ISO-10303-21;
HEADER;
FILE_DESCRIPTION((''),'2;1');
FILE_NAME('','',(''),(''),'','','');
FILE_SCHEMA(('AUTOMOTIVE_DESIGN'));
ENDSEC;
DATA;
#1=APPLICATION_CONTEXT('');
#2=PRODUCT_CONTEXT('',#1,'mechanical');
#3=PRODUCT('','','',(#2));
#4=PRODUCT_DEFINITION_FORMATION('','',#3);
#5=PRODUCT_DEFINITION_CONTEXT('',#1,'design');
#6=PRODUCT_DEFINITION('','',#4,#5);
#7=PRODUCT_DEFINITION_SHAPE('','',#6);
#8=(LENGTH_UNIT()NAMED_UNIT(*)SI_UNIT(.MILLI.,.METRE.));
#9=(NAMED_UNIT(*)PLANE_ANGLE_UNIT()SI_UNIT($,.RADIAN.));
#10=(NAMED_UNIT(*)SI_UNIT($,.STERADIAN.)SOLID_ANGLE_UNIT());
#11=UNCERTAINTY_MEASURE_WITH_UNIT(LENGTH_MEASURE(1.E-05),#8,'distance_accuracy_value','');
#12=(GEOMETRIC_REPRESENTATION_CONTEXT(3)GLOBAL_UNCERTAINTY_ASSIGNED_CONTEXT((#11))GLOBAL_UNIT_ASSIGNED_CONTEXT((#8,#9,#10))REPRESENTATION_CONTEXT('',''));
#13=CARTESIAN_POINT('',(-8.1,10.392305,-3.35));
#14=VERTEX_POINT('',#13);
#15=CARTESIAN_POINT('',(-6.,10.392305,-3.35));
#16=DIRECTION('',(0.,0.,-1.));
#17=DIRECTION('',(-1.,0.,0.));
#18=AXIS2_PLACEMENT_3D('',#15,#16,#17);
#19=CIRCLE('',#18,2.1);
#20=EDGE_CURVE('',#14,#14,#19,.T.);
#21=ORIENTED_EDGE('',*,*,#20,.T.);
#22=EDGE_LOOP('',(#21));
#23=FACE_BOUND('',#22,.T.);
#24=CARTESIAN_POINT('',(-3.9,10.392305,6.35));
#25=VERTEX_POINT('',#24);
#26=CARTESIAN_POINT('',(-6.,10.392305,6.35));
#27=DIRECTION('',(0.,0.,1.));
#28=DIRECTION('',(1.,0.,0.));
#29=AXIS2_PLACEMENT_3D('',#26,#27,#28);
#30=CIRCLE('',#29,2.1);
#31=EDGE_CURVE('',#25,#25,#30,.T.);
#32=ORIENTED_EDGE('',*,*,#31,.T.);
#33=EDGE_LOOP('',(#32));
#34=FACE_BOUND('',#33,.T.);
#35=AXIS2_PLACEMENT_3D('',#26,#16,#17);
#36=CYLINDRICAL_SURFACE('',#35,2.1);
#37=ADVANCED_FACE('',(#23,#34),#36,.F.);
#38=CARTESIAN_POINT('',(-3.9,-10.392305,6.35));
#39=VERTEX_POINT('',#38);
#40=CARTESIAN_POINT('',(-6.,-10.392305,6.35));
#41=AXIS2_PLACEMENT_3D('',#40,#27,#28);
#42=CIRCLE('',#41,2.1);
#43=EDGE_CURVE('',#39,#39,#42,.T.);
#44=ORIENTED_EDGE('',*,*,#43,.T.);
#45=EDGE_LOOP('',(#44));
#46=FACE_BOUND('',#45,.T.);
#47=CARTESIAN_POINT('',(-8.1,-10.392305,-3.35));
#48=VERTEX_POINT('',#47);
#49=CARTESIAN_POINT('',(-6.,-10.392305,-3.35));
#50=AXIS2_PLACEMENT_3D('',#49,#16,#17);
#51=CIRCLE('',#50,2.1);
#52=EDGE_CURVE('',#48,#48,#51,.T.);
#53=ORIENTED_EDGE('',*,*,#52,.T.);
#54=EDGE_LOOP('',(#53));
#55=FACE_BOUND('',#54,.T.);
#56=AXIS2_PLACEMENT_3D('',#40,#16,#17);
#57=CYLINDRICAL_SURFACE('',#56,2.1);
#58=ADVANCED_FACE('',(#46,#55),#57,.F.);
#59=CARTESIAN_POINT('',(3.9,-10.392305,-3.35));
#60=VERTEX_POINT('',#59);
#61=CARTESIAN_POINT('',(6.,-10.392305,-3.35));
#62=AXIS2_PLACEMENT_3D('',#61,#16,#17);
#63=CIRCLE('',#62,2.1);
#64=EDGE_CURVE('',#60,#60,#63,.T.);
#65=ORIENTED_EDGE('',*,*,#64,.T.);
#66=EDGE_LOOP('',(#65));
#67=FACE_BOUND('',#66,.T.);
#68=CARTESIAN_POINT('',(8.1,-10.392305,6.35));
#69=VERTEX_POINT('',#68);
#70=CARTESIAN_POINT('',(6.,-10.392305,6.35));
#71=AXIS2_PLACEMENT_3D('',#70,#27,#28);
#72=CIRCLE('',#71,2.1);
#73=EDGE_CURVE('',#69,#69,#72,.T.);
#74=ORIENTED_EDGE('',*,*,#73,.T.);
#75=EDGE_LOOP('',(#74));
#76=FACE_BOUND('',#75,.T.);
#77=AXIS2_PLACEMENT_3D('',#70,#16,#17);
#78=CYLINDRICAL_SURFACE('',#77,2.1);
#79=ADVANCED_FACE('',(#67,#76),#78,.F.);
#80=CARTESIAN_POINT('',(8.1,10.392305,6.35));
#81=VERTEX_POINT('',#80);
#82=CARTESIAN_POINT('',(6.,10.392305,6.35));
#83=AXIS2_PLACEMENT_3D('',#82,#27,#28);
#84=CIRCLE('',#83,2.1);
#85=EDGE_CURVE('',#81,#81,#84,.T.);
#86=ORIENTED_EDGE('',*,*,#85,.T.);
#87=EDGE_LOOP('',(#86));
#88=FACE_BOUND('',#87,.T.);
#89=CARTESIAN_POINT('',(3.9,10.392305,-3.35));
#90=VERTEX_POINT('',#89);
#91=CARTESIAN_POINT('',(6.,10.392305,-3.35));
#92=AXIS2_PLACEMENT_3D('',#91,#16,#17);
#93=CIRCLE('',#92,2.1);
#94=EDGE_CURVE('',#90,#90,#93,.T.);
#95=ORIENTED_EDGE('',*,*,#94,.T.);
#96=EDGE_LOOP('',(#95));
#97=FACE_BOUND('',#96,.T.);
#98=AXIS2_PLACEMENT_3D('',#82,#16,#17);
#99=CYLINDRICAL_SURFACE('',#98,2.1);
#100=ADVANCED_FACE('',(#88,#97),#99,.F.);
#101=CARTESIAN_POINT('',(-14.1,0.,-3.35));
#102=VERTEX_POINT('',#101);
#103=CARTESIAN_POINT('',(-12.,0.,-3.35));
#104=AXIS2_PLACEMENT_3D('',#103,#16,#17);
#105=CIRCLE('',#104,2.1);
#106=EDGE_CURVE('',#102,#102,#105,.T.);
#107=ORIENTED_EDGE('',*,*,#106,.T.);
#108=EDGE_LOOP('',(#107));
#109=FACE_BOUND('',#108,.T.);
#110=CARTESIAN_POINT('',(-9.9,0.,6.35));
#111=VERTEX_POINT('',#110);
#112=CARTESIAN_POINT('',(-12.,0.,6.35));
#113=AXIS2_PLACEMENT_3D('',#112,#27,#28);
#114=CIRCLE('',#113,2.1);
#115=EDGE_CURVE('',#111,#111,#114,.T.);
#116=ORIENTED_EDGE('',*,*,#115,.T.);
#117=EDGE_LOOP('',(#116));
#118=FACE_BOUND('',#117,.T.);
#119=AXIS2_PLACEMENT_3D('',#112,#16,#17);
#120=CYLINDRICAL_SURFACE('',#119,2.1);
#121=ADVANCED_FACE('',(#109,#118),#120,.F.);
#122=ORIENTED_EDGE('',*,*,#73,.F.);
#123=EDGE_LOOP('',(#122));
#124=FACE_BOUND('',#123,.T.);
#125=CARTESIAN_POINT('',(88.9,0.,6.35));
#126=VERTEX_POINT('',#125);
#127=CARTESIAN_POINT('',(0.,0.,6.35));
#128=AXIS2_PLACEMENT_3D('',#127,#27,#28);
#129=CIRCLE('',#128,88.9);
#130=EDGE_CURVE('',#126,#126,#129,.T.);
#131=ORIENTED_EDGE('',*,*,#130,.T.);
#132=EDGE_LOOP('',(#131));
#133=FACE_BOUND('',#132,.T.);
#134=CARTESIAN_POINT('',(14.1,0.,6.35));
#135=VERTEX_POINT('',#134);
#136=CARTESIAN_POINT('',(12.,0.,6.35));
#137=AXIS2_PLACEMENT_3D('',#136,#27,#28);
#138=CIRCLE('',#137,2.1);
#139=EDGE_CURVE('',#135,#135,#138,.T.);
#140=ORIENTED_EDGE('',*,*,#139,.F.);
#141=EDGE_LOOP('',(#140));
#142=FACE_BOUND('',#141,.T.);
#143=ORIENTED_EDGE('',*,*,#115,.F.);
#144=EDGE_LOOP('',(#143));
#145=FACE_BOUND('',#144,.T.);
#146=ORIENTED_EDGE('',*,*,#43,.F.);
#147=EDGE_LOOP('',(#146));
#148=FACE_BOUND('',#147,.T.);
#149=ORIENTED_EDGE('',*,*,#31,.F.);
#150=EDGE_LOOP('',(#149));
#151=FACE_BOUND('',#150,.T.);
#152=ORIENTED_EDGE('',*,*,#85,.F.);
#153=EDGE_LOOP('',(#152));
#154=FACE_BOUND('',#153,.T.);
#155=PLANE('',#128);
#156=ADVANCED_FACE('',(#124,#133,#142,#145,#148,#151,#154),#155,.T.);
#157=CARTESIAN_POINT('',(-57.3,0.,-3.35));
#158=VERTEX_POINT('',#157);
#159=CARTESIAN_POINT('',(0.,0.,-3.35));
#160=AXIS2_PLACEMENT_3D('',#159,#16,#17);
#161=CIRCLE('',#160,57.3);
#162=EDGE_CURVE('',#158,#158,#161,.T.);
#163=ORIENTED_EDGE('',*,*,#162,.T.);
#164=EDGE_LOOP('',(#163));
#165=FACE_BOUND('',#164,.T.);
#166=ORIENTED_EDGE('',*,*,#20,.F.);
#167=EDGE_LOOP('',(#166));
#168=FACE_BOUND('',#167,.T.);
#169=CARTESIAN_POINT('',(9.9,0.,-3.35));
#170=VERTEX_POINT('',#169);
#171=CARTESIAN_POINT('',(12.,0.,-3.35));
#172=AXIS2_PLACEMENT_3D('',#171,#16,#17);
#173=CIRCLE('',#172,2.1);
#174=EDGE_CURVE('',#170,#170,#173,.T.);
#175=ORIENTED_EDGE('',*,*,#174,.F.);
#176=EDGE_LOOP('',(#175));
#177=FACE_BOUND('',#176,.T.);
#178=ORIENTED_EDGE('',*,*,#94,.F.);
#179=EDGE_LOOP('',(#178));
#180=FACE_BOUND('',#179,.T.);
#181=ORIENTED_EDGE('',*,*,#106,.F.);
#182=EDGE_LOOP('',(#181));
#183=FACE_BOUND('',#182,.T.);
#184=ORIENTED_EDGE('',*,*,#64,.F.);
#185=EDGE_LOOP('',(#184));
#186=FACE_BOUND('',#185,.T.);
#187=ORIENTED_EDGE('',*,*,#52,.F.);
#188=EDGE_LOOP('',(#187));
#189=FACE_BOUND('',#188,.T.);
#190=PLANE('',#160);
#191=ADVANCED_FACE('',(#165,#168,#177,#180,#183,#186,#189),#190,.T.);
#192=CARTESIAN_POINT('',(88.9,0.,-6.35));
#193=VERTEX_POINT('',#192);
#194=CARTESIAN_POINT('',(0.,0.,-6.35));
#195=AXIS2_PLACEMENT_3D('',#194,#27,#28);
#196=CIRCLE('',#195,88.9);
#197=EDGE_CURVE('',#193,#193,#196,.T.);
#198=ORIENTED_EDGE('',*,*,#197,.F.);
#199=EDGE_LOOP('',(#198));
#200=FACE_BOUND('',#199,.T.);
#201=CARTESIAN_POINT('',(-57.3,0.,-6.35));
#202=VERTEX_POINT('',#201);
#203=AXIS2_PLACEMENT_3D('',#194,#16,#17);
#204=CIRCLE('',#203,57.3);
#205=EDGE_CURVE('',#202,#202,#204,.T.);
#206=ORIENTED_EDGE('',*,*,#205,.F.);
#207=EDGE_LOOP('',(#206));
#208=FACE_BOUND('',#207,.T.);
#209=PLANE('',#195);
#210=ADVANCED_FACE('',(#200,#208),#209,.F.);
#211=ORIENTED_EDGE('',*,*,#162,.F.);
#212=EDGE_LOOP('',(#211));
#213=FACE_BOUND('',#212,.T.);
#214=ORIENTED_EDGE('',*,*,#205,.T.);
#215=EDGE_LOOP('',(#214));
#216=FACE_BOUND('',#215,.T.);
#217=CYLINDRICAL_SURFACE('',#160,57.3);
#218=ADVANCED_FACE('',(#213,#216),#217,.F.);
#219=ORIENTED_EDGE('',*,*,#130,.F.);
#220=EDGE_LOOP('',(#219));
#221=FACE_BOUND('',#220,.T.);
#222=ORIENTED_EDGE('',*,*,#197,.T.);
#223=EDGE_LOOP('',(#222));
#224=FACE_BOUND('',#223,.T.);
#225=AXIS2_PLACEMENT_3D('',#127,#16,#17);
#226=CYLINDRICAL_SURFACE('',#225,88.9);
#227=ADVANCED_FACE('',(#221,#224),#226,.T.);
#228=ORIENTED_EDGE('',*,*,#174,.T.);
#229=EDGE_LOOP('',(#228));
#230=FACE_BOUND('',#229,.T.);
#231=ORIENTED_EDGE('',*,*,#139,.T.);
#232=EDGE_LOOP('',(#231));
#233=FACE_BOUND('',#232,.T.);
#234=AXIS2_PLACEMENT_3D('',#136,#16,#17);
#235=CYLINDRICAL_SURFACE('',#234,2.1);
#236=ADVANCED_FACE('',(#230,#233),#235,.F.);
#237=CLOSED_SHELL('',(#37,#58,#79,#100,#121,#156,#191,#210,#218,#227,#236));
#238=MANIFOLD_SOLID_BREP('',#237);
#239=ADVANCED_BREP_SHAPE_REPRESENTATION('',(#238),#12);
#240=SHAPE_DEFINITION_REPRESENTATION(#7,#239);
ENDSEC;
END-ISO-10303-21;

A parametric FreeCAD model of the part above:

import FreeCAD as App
import Part
import Sketcher
from FreeCAD import Vector

doc = App.newDocument("Part")
params = doc.addObject("Spreadsheet::Sheet", "Params")
for row, (alias, value) in enumerate([
    ("sketch1_diameter", "177.8 mm"),
    ("sketch1_diameter2", "4.2 mm"),
    ("pad1_length", "12.7 mm"),
    ("sketch2_diameter", "114.6 mm"),
    ("pocket1_length", "3 mm"),
], start=1):
    params.set(f"A{row}", alias)
    params.set(f"B{row}", "=" + value)
    params.setAlias(f"B{row}", alias)

body = doc.addObject("PartDesign::Body", "Body")

# Sketch on XY plane
sketch1 = body.newObject("Sketcher::SketchObject", "Sketch")
sketch1.AttachmentSupport = (doc.getObject("XY_Plane"), [""])
sketch1.MapMode = "FlatFace"
sketch1.addGeometry([
    Part.Circle(Vector(0, 0, 0), Vector(0, 0, 1), 88.9),  # 0
    Part.Circle(Vector(-6, -10.392305, 0), Vector(0, 0, 1), 2.1),  # 1
    Part.Circle(Vector(6, -10.392305, 0), Vector(0, 0, 1), 2.1),  # 2
    Part.Circle(Vector(-12, 0, 0), Vector(0, 0, 1), 2.1),  # 3
    Part.Circle(Vector(-6, 10.392305, 0), Vector(0, 0, 1), 2.1),  # 4
    Part.Circle(Vector(12, 0, 0), Vector(0, 0, 1), 2.1),  # 5
    Part.Circle(Vector(6, 10.392305, 0), Vector(0, 0, 1), 2.1),  # 6
], False)
sketch1.addConstraint([
    Sketcher.Constraint("Coincident", 0, 3, -1, 1),
    Sketcher.Constraint("Equal", 1, 2),
    Sketcher.Constraint("Equal", 2, 3),
    Sketcher.Constraint("Equal", 3, 4),
    Sketcher.Constraint("Equal", 4, 5),
    Sketcher.Constraint("Equal", 5, 6),
    Sketcher.Constraint("Symmetric", 2, 3, 4, 3, -1, 1),
    Sketcher.Constraint("Symmetric", 3, 3, 5, 3, -1, 1),
    Sketcher.Constraint("Symmetric", 1, 3, 6, 3, -1, 1),
    Sketcher.Constraint("Symmetric", 1, 3, 2, 3, -2),
    Sketcher.Constraint("PointOnObject", 3, 3, -1),
    Sketcher.Constraint("Diameter", 0, 177.8),
    Sketcher.Constraint("Diameter", 1, 4.2),
    Sketcher.Constraint("DistanceX", 1, 3, -1, 1, 6.0),
    Sketcher.Constraint("DistanceX", 3, 3, -1, 1, 12.0),
    Sketcher.Constraint("DistanceY", 1, 3, 4, 3, 20.78461),
])
sketch1.setExpression("Constraints[11]", "Params.sketch1_diameter")
sketch1.setExpression("Constraints[12]", "Params.sketch1_diameter2")
pad1 = body.newObject("PartDesign::Pad", "Pad")
pad1.Profile = sketch1
pad1.setExpression("Length", "Params.pad1_length")
pad1.Midplane = True

# Sketch on XY plane
sketch2 = body.newObject("Sketcher::SketchObject", "Sketch001")
sketch2.AttachmentSupport = (doc.getObject("XY_Plane"), [""])
sketch2.MapMode = "FlatFace"
sketch2.AttachmentOffset = App.Placement(Vector(0, 0, -6.35), App.Rotation())
sketch2.addGeometry(Part.Circle(Vector(0, 0, 0), Vector(0, 0, 1), 57.3), False)
sketch2.addConstraint([
    Sketcher.Constraint("Coincident", 0, 3, -1, 1),
    Sketcher.Constraint("Diameter", 0, 114.6),
])
sketch2.setExpression("Constraints[1]", "Params.sketch2_diameter")
pocket1 = body.newObject("PartDesign::Pocket", "Pocket")
pocket1.Profile = sketch2
pocket1.setExpression("Length", "Params.pocket1_length")
pocket1.Reversed = True

doc.recompute()
